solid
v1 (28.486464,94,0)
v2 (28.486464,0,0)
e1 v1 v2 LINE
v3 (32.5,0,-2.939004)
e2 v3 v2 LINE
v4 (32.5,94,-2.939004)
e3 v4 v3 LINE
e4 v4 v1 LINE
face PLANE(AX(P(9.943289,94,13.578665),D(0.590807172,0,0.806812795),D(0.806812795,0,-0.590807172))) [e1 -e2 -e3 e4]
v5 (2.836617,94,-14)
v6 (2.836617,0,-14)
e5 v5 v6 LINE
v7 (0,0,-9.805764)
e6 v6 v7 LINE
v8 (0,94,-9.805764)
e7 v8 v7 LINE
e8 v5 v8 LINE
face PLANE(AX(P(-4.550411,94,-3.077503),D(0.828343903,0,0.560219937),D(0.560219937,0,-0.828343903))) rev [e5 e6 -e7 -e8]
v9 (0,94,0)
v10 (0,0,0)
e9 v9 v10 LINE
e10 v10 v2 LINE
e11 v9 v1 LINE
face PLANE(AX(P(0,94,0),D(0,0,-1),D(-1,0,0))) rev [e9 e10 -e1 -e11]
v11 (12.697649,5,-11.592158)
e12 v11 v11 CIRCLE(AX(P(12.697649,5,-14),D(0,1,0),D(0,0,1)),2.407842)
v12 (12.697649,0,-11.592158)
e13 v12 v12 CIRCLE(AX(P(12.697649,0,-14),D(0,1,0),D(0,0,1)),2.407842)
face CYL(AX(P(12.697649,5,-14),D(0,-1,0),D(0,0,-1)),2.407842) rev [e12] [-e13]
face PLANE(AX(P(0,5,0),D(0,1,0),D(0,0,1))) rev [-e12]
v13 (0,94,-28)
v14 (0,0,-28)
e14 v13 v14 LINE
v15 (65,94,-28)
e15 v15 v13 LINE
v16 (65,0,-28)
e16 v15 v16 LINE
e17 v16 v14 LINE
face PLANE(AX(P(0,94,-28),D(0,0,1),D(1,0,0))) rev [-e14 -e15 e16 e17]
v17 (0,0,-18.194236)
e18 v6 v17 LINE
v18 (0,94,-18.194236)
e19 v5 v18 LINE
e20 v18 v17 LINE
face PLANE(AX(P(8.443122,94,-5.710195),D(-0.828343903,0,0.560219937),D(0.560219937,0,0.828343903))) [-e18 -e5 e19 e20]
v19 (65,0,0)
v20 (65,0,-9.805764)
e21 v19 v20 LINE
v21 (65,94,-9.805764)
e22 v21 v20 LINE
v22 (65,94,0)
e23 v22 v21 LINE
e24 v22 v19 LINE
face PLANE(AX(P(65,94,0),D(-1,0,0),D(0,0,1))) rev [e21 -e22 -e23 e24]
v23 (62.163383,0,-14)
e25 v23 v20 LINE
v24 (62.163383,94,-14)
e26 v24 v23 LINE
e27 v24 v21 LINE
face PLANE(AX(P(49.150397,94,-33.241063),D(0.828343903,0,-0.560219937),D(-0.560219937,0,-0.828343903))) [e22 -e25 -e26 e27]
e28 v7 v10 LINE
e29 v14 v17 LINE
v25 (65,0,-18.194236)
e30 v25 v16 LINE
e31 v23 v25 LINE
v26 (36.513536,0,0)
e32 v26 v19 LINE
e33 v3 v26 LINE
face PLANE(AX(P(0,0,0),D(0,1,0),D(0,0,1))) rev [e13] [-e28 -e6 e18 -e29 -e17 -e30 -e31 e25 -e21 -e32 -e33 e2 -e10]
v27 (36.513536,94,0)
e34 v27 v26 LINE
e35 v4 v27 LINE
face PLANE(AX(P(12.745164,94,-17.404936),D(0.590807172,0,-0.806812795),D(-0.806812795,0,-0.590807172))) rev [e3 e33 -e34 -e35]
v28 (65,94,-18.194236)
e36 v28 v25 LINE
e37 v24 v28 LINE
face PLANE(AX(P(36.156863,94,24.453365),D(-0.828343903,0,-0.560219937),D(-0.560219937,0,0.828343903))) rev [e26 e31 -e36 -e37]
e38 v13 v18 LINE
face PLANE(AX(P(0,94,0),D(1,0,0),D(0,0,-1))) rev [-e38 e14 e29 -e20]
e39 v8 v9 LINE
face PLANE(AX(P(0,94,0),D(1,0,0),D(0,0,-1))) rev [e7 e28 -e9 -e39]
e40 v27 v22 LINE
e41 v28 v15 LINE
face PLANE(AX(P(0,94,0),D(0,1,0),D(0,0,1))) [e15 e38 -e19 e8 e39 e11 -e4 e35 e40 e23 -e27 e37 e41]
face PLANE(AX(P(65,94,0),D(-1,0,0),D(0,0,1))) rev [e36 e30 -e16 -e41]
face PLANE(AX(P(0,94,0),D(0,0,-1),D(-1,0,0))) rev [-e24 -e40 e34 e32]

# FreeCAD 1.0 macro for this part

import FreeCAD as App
import Part
import Sketcher
Q = App.Units.Quantity

doc = App.newDocument("Part")
params = doc.addObject("Spreadsheet::Sheet", "Params")
for row, (alias, value) in enumerate([
    ("sketch1_width", "65 mm"),
    ("pad1_length", "94 mm"),
    ("pocket1_length", "5 mm"),
], start=1):
    params.set(f"A{row}", alias)
    params.set(f"B{row}", "=" + value)
    params.setAlias(f"B{row}", alias)

body = doc.addObject("PartDesign::Body", "Body")

sketch1 = body.newObject("Sketcher::SketchObject", "Sketch")
sketch1.AttachmentSupport = (doc.getObject("XZ_Plane"), [""])
sketch1.MapMode = "FlatFace"
sketch1.addGeometry([
    Part.LineSegment(App.Vector(0, -9.8, 0), App.Vector(0, 0, 0)),
    Part.LineSegment(App.Vector(0, 0, 0), App.Vector(28.5, 0, 0)),
    Part.LineSegment(App.Vector(28.5, 0, 0), App.Vector(32.5, -2.9, 0)),
    Part.LineSegment(App.Vector(32.5, -2.9, 0), App.Vector(36.5, 0, 0)),
    Part.LineSegment(App.Vector(36.5, 0, 0), App.Vector(65, 0, 0)),
    Part.LineSegment(App.Vector(65, 0, 0), App.Vector(65, -9.8, 0)),
    Part.LineSegment(App.Vector(65, -9.8, 0), App.Vector(62.2, -14, 0)),
    Part.LineSegment(App.Vector(62.2, -14, 0), App.Vector(65, -18.2, 0)),
    Part.LineSegment(App.Vector(65, -18.2, 0), App.Vector(65, -28, 0)),
    Part.LineSegment(App.Vector(65, -28, 0), App.Vector(0, -28, 0)),
    Part.LineSegment(App.Vector(0, -28, 0), App.Vector(0, -18.2, 0)),
    Part.LineSegment(App.Vector(0, -18.2, 0), App.Vector(2.8, -14, 0)),
    Part.LineSegment(App.Vector(2.8, -14, 0), App.Vector(0, -9.8, 0)),
], False)
sketch1.addConstraint([
    Sketcher.Constraint("Coincident", 0, 2, 1, 1),
    Sketcher.Constraint("Coincident", 1, 2, 2, 1),
    Sketcher.Constraint("Coincident", 2, 2, 3, 1),
    Sketcher.Constraint("Coincident", 3, 2, 4, 1),
    Sketcher.Constraint("Coincident", 4, 2, 5, 1),
    Sketcher.Constraint("Coincident", 5, 2, 6, 1),
    Sketcher.Constraint("Coincident", 6, 2, 7, 1),
    Sketcher.Constraint("Coincident", 7, 2, 8, 1),
    Sketcher.Constraint("Coincident", 8, 2, 9, 1),
    Sketcher.Constraint("Coincident", 9, 2, 10, 1),
    Sketcher.Constraint("Coincident", 10, 2, 11, 1),
    Sketcher.Constraint("Coincident", 11, 2, 12, 1),
    Sketcher.Constraint("Coincident", 12, 2, 0, 1),
    Sketcher.Constraint("Vertical", 0),
    Sketcher.Constraint("Horizontal", 1),
    Sketcher.Constraint("Horizontal", 4),
    Sketcher.Constraint("Vertical", 5),
    Sketcher.Constraint("Vertical", 8),
    Sketcher.Constraint("Horizontal", 9),
    Sketcher.Constraint("Vertical", 10),
    Sketcher.Constraint("Coincident", 0, 2, -1, 1),
    Sketcher.Constraint("PointOnObject", 3, 2, -1),
    Sketcher.Constraint("PointOnObject", 9, 2, -2),
    Sketcher.Constraint("Parallel", 6, 11),
    Sketcher.Constraint("Parallel", 7, 12),
    Sketcher.Constraint("Horizontal", 7, 2, 10, 2),
    Sketcher.Constraint("Horizontal", 6, 2, 11, 2),
    Sketcher.Constraint("Horizontal", 5, 2, 12, 2),
    Sketcher.Constraint("Vertical", 5, 2, 7, 2),
    Sketcher.Constraint("Equal", 1, 4),
    Sketcher.Constraint("Equal", 5, 8),
    Sketcher.Constraint("Equal", 2, 3),
    Sketcher.Constraint("DistanceX", 9, 2, 9, 1, Q("65 mm")),
    Sketcher.Constraint("DistanceY", 6, 2, -1, 1, Q("14 mm")),
    Sketcher.Constraint("Distance", 6, Q("5.0634 mm")),
    Sketcher.Constraint("DistanceX", 1, 1, 1, 2, Q("28.486464 mm")),
    Sketcher.Constraint("DistanceY", 0, 1, 0, 2, Q("9.805764 mm")),
    Sketcher.Constraint("DistanceY", 5, 2, 2, 2, Q("6.86676 mm")),
])
sketch1.setExpression("Constraints[32]", "Params.sketch1_width")
pad1 = body.newObject("PartDesign::Pad", "Pad")
pad1.Profile = sketch1
pad1.setExpression("Length", "Params.pad1_length")
pad1.Reversed = True

sketch2 = body.newObject("Sketcher::SketchObject", "Sketch001")
sketch2.AttachmentSupport = (doc.getObject("XZ_Plane"), [""])
sketch2.MapMode = "FlatFace"
sketch2.addGeometry(Part.Circle(App.Vector(12.7, -14, 0), App.Vector(0, 0, 1), 2.4), False)
sketch2.addConstraint([
    Sketcher.Constraint("DistanceY", 0, 3, -1, 1, Q("14 mm")),
    Sketcher.Constraint("Diameter", 0, Q("4.815685 mm")),
    Sketcher.Constraint("DistanceX", -1, 1, 0, 3, Q("12.697649 mm")),
])
pocket1 = body.newObject("PartDesign::Pocket", "Pocket")
pocket1.Profile = sketch2
pocket1.setExpression("Length", "Params.pocket1_length")

doc.recompute()
